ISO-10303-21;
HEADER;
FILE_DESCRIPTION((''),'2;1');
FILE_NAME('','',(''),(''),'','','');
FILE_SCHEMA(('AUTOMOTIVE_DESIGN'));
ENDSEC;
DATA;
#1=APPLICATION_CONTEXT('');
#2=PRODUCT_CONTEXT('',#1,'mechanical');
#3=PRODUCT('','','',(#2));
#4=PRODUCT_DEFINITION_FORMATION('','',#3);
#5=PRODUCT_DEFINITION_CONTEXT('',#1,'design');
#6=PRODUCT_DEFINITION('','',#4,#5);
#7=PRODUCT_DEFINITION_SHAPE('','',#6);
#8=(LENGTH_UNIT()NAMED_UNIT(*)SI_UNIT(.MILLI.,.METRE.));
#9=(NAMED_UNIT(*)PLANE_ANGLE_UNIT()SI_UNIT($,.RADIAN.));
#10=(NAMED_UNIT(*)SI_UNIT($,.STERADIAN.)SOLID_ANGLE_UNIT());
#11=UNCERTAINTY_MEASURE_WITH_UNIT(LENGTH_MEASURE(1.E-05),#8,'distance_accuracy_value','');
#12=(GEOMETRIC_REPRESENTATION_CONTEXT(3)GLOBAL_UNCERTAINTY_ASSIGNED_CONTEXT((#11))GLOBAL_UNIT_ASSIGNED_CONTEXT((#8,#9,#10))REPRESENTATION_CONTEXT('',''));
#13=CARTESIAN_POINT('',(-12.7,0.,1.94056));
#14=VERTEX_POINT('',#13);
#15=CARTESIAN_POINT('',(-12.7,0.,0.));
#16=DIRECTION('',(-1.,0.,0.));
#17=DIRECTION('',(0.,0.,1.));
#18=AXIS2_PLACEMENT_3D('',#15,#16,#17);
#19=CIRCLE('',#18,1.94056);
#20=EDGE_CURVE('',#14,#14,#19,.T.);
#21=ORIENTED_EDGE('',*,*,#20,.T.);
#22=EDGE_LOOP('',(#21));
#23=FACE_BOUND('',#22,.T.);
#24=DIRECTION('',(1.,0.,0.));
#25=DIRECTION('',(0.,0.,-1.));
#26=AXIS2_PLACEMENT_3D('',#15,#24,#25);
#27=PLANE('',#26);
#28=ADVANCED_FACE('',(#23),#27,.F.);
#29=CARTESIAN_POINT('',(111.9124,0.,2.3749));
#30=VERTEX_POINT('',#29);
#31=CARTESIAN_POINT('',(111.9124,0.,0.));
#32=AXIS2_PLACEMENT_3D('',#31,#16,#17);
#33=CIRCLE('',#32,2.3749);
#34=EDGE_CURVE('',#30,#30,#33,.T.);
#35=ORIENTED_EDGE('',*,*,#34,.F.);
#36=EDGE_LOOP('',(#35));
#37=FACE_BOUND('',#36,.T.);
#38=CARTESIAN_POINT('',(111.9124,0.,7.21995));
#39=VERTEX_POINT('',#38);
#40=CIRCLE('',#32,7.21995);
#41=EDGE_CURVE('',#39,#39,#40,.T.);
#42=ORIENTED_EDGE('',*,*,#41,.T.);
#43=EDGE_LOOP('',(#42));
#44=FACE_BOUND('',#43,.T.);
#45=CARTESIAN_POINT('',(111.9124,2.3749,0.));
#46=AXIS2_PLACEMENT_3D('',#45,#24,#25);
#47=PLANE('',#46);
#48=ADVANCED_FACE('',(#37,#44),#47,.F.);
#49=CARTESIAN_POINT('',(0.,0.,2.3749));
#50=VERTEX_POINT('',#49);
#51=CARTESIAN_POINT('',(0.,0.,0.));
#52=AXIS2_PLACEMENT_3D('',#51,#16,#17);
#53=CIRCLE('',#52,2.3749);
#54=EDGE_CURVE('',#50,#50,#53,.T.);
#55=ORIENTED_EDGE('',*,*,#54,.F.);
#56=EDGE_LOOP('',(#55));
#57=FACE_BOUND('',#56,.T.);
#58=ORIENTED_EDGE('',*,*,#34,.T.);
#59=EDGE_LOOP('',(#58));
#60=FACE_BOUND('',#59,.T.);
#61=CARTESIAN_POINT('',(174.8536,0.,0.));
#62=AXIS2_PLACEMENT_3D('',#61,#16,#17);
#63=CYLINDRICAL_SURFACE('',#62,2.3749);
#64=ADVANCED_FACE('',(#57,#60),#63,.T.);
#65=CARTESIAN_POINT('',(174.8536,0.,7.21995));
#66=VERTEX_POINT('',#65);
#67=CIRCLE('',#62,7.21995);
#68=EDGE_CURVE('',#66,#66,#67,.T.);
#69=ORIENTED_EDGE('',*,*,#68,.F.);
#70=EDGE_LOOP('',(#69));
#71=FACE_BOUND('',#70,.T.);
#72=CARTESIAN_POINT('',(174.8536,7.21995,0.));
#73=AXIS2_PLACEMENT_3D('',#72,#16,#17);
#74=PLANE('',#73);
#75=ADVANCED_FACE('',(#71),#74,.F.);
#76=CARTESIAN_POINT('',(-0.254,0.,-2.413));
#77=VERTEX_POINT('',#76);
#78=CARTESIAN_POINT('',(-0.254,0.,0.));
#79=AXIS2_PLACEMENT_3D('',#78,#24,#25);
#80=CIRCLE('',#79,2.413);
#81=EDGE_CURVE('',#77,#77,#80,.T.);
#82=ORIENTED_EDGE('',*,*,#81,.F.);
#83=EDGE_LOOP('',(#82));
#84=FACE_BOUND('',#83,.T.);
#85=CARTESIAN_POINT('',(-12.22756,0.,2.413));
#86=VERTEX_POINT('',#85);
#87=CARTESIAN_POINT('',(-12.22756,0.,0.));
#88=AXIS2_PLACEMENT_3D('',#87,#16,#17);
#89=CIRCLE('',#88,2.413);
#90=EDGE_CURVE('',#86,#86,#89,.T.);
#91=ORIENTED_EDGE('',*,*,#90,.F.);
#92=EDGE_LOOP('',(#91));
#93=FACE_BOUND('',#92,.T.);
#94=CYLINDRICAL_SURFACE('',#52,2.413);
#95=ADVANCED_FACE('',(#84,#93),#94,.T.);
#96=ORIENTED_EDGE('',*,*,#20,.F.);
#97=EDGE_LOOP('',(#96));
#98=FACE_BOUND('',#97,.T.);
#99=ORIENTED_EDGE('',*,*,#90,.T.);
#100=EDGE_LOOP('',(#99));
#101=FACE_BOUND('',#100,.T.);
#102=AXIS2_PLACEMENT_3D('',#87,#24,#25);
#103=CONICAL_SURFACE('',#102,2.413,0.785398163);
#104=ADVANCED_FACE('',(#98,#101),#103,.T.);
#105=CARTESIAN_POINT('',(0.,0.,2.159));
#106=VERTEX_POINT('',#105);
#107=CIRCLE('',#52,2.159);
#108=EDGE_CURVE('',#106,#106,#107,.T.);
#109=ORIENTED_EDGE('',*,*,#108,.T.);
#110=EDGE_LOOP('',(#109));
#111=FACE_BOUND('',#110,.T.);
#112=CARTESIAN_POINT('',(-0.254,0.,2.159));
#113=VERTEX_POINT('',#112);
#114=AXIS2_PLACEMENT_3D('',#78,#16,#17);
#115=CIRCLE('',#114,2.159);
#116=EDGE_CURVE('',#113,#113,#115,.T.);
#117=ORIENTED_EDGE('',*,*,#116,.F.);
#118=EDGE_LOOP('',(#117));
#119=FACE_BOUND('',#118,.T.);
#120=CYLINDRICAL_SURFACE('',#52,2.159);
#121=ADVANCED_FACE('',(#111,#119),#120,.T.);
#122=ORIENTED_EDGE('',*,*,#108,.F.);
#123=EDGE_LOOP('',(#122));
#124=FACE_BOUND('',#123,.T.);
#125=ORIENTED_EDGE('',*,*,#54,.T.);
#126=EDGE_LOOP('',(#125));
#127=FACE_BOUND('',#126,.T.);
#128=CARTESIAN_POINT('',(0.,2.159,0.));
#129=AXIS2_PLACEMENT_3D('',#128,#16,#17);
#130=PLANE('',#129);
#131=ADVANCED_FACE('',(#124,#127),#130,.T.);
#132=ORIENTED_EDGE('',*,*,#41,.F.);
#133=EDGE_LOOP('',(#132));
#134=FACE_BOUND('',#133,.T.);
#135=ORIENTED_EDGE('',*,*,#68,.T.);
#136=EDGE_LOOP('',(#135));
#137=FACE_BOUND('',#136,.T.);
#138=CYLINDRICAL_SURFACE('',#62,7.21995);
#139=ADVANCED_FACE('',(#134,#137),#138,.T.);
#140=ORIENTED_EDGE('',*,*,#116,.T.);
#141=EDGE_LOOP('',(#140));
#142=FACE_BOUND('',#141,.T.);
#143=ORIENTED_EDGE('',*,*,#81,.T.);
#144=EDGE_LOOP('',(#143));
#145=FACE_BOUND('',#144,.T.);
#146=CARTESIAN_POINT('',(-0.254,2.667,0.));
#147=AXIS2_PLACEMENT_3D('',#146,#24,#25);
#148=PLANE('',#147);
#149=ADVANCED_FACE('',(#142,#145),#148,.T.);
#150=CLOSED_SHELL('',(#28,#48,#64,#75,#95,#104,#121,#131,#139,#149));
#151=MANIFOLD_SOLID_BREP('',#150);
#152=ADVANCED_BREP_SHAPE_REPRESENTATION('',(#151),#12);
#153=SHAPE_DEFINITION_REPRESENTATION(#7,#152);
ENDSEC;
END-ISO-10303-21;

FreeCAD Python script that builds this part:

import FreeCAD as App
import Part
import Sketcher
from FreeCAD import Vector
Q = App.Units.Quantity

doc = App.newDocument("Part")
params = doc.addObject("Spreadsheet::Sheet", "Params")
for row, (alias, value) in enumerate([
    ("sketch1_width", "6.884 in"),
    ("sketch1_width2", "2.478 in"),
    ("revolution_angle", "360 deg"),
    ("sketch2_width", "0.5 in"),
    ("sketch2_height", "0.095 in"),
    ("revolution2_angle", "360 deg"),
    ("sketch3_width", "0.01 in"),
    ("sketch3_height", "0.02 in"),
    ("groove_angle", "360 deg"),
], start=1):
    params.set(f"A{row}", alias)
    params.set(f"B{row}", "=" + value)
    params.setAlias(f"B{row}", alias)

body = doc.addObject("PartDesign::Body", "Body")

sketch1 = doc.addObject("Sketcher::SketchObject", "Sketch")
body.addObject(sketch1)
sketch1.AttachmentSupport = (doc.XY_Plane, [""])
sketch1.MapMode = "FlatFace"
sketch1.addGeometry(Part.LineSegment(Vector(0, 2.4, 0), Vector(0, 0, 0)), False)
sketch1.addGeometry(Part.LineSegment(Vector(0, 0, 0), Vector(174.9, 0, 0)), False)
sketch1.addGeometry(Part.LineSegment(Vector(174.9, 0, 0), Vector(174.9, 7.2, 0)), False)
sketch1.addGeometry(Part.LineSegment(Vector(174.9, 7.2, 0), Vector(111.9, 7.2, 0)), False)
sketch1.addGeometry(Part.LineSegment(Vector(111.9, 7.2, 0), Vector(111.9, 2.4, 0)), False)
sketch1.addGeometry(Part.LineSegment(Vector(111.9, 2.4, 0), Vector(0, 2.4, 0)), False)
sketch1.addConstraint(Sketcher.Constraint("Coincident", 0, 2, 1, 1))
sketch1.addConstraint(Sketcher.Constraint("Coincident", 1, 2, 2, 1))
sketch1.addConstraint(Sketcher.Constraint("Coincident", 2, 2, 3, 1))
sketch1.addConstraint(Sketcher.Constraint("Coincident", 3, 2, 4, 1))
sketch1.addConstraint(Sketcher.Constraint("Coincident", 4, 2, 5, 1))
sketch1.addConstraint(Sketcher.Constraint("Coincident", 5, 2, 0, 1))
sketch1.addConstraint(Sketcher.Constraint("Vertical", 0))
sketch1.addConstraint(Sketcher.Constraint("Horizontal", 1))
sketch1.addConstraint(Sketcher.Constraint("Vertical", 2))
sketch1.addConstraint(Sketcher.Constraint("Horizontal", 3))
sketch1.addConstraint(Sketcher.Constraint("Vertical", 4))
sketch1.addConstraint(Sketcher.Constraint("Horizontal", 5))
sketch1.addConstraint(Sketcher.Constraint("Coincident", 0, 2, -1, 1))
sketch1.addConstraint(Sketcher.Constraint("DistanceX", 1, 1, 1, 2, Q("6.884 in")))
sketch1.addConstraint(Sketcher.Constraint("DistanceX", 3, 2, 3, 1, Q("2.478 in")))
sketch1.addConstraint(Sketcher.Constraint("DistanceY", 0, 2, 0, 1, Q("0.0935 in")))
sketch1.addConstraint(Sketcher.Constraint("DistanceY", 2, 1, 2, 2, 7.21995))
sketch1.setExpression("Constraints[13]", "Params.sketch1_width")
sketch1.setExpression("Constraints[14]", "Params.sketch1_width2")
revolution = doc.addObject("PartDesign::Revolution", "Revolution")
body.addObject(revolution)
revolution.Profile = sketch1
revolution.ReferenceAxis = (sketch1, ["H_Axis"])
revolution.setExpression("Angle", "Params.revolution_angle")

sketch2 = doc.addObject("Sketcher::SketchObject", "Sketch001")
body.addObject(sketch2)
sketch2.AttachmentSupport = (doc.XY_Plane, [""])
sketch2.MapMode = "FlatFace"
sketch2.addGeometry(Part.LineSegment(Vector(-12.7, 1.9, 0), Vector(-12.7, 0, 0)), False)
sketch2.addGeometry(Part.LineSegment(Vector(-12.7, 0, 0), Vector(0, 0, 0)), False)
sketch2.addGeometry(Part.LineSegment(Vector(0, 0, 0), Vector(0, 2.4, 0)), False)
sketch2.addGeometry(Part.LineSegment(Vector(0, 2.4, 0), Vector(-12.2, 2.4, 0)), False)
sketch2.addGeometry(Part.LineSegment(Vector(-12.2, 2.4, 0), Vector(-12.7, 1.9, 0)), False)
sketch2.addConstraint(Sketcher.Constraint("Coincident", 0, 2, 1, 1))
sketch2.addConstraint(Sketcher.Constraint("Coincident", 1, 2, 2, 1))
sketch2.addConstraint(Sketcher.Constraint("Coincident", 2, 2, 3, 1))
sketch2.addConstraint(Sketcher.Constraint("Coincident", 3, 2, 4, 1))
sketch2.addConstraint(Sketcher.Constraint("Coincident", 4, 2, 0, 1))
sketch2.addConstraint(Sketcher.Constraint("Vertical", 0))
sketch2.addConstraint(Sketcher.Constraint("Horizontal", 1))
sketch2.addConstraint(Sketcher.Constraint("Vertical", 2))
sketch2.addConstraint(Sketcher.Constraint("Horizontal", 3))
sketch2.addConstraint(Sketcher.Constraint("Coincident", 1, 2, -1, 1))
sketch2.addConstraint(Sketcher.Constraint("DistanceX", 1, 1, 1, 2, Q("0.5 in")))
sketch2.addConstraint(Sketcher.Constraint("Angle", 4, Q("-135 deg")))
sketch2.addConstraint(Sketcher.Constraint("DistanceY", 2, 1, 2, 2, Q("0.095 in")))
sketch2.addConstraint(Sketcher.Constraint("DistanceX", 3, 2, 3, 1, Q("0.4814 in")))
sketch2.setExpression("Constraints[10]", "Params.sketch2_width")
sketch2.setExpression("Constraints[12]", "Params.sketch2_height")
revolution2 = doc.addObject("PartDesign::Revolution", "Revolution001")
body.addObject(revolution2)
revolution2.Profile = sketch2
revolution2.ReferenceAxis = (sketch2, ["H_Axis"])
revolution2.setExpression("Angle", "Params.revolution2_angle")

sketch3 = doc.addObject("Sketcher::SketchObject", "Sketch002")
body.addObject(sketch3)
sketch3.AttachmentSupport = (doc.XY_Plane, [""])
sketch3.MapMode = "FlatFace"
sketch3.addGeometry(Part.LineSegment(Vector(-0.25, 2.67, 0), Vector(-0.25, 2.16, 0)), False)
sketch3.addGeometry(Part.LineSegment(Vector(-0.25, 2.16, 0), Vector(0, 2.16, 0)), False)
sketch3.addGeometry(Part.LineSegment(Vector(0, 2.16, 0), Vector(0, 2.67, 0)), False)
sketch3.addGeometry(Part.LineSegment(Vector(0, 2.67, 0), Vector(-0.25, 2.67, 0)), False)
sketch3.addConstraint(Sketcher.Constraint("Coincident", 0, 2, 1, 1))
sketch3.addConstraint(Sketcher.Constraint("Coincident", 1, 2, 2, 1))
sketch3.addConstraint(Sketcher.Constraint("Coincident", 2, 2, 3, 1))
sketch3.addConstraint(Sketcher.Constraint("Coincident", 3, 2, 0, 1))
sketch3.addConstraint(Sketcher.Constraint("Vertical", 0))
sketch3.addConstraint(Sketcher.Constraint("Horizontal", 1))
sketch3.addConstraint(Sketcher.Constraint("Vertical", 2))
sketch3.addConstraint(Sketcher.Constraint("Horizontal", 3))
sketch3.addConstraint(Sketcher.Constraint("PointOnObject", 1, 2, -2))
sketch3.addConstraint(Sketcher.Constraint("DistanceX", 1, 1, 1, 2, Q("0.01 in")))
sketch3.addConstraint(Sketcher.Constraint("DistanceY", 0, 2, 0, 1, Q("0.02 in")))
sketch3.addConstraint(Sketcher.Constraint("DistanceY", -1, 1, 0, 2, Q("0.085 in")))
sketch3.setExpression("Constraints[9]", "Params.sketch3_width")
sketch3.setExpression("Constraints[10]", "Params.sketch3_height")
groove = doc.addObject("PartDesign::Groove", "Groove")
body.addObject(groove)
groove.Profile = sketch3
groove.ReferenceAxis = (sketch3, ["H_Axis"])
groove.setExpression("Angle", "Params.groove_angle")

doc.recompute()
